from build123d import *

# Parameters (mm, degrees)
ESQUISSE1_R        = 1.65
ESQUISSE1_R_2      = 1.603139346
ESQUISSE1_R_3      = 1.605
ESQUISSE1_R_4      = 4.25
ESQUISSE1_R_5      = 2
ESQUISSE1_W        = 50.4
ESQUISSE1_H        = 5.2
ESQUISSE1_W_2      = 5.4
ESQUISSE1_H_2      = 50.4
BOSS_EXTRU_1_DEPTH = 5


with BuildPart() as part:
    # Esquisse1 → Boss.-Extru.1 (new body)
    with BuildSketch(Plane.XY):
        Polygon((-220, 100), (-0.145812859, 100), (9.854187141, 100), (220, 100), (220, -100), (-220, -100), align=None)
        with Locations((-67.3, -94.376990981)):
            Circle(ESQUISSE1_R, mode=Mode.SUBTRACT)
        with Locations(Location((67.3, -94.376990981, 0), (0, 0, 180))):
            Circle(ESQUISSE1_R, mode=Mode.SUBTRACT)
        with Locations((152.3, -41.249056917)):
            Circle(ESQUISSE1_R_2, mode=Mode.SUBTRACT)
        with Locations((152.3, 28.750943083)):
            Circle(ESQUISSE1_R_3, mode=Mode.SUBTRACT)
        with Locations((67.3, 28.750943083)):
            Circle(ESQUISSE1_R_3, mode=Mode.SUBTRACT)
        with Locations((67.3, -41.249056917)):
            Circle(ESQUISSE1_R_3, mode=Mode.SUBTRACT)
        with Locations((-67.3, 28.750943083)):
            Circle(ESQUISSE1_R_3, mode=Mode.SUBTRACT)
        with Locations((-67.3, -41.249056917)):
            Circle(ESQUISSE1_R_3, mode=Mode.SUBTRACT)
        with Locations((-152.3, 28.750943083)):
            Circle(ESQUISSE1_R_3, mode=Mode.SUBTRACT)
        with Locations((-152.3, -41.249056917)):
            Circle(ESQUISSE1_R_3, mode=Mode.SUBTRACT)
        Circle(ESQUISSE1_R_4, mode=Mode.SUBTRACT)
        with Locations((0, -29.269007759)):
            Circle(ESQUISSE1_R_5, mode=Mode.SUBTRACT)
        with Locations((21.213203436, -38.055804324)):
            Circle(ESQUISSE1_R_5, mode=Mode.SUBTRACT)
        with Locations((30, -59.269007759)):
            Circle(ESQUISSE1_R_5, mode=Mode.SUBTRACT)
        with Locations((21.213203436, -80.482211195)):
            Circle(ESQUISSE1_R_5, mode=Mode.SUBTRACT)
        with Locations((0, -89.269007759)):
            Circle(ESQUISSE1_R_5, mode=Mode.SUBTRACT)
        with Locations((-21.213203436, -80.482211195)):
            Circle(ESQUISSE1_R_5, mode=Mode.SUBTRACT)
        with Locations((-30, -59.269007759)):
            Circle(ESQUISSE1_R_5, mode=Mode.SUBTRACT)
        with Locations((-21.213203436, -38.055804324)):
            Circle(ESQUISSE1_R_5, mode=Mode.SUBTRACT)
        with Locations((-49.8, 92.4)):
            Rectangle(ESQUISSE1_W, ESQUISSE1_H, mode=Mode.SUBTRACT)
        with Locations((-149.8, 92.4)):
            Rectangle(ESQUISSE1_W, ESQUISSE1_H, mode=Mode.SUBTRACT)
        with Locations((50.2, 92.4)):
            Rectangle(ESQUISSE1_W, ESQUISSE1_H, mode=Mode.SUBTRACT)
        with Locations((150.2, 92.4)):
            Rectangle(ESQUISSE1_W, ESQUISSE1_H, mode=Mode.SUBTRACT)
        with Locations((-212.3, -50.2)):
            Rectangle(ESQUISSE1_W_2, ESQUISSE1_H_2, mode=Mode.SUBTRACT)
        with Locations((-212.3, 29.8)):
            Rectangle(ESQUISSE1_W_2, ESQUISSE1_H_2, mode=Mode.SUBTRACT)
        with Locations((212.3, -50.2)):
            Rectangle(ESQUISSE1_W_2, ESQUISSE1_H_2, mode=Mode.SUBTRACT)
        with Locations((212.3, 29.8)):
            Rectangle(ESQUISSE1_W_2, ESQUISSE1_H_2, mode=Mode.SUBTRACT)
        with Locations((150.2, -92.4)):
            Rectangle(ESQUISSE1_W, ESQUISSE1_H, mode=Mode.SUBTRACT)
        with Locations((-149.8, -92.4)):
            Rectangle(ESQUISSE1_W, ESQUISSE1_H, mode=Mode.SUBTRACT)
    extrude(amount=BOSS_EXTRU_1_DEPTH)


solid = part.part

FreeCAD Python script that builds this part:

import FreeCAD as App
import Part
import Sketcher
Q = App.Units.Quantity

doc = App.newDocument("Part")
body = doc.addObject("PartDesign::Body", "Body")

sketch1 = body.newObject("Sketcher::SketchObject", "Sketch")
sketch1.AttachmentSupport = (doc.getObject("XY_Plane"), [""])
sketch1.MapMode = "FlatFace"
sketch1.addGeometry(Part.LineSegment(App.Vector(220, 100, 0), App.Vector(-220, 100, 0)), False)
sketch1.addGeometry(Part.LineSegment(App.Vector(-220, 100, 0), App.Vector(-220, -100, 0)), False)
sketch1.addGeometry(Part.LineSegment(App.Vector(-220, -100, 0), App.Vector(220, -100, 0)), False)
sketch1.addGeometry(Part.LineSegment(App.Vector(220, -100, 0), App.Vector(220, 100, 0)), False)
sketch1.addGeometry(Part.LineSegment(App.Vector(125, -95, 0), App.Vector(125, -89.8, 0)), False)
sketch1.addGeometry(Part.LineSegment(App.Vector(125, -89.8, 0), App.Vector(175.4, -89.8, 0)), False)
sketch1.addGeometry(Part.LineSegment(App.Vector(175.4, -89.8, 0), App.Vector(175.4, -95, 0)), False)
sketch1.addGeometry(Part.LineSegment(App.Vector(175.4, -95, 0), App.Vector(125, -95, 0)), False)
sketch1.addGeometry(Part.LineSegment(App.Vector(209.6, -75.4, 0), App.Vector(209.6, -25, 0)), False)
sketch1.addGeometry(Part.LineSegment(App.Vector(209.6, -25, 0), App.Vector(215, -25, 0)), False)
sketch1.addGeometry(Part.LineSegment(App.Vector(215, -25, 0), App.Vector(215, -75.4, 0)), False)
sketch1.addGeometry(Part.LineSegment(App.Vector(215, -75.4, 0), App.Vector(209.6, -75.4, 0)), False)
sketch1.addGeometry(Part.Circle(App.Vector(67.3, -94.376991, 0), App.Vector(0, 0, 1), 1.65), False)
sketch1.addGeometry(Part.Circle(App.Vector(21.213203, -80.482211, 0), App.Vector(0, 0, 1), 2), False)
sketch1.addGeometry(Part.Circle(App.Vector(30, -59.269008, 0), App.Vector(0, 0, 1), 2), False)
sketch1.addGeometry(Part.Circle(App.Vector(152.3, -41.249057, 0), App.Vector(0, 0, 1), 1.603139), False)
sketch1.addGeometry(Part.Circle(App.Vector(67.3, -41.249057, 0), App.Vector(0, 0, 1), 1.605), False)
sketch1.addGeometry(Part.Circle(App.Vector(21.213203, -38.055804, 0), App.Vector(0, 0, 1), 2), False)
sketch1.addGeometry(Part.Circle(App.Vector(0, -89.269008, 0), App.Vector(0, 0, 1), 2), False)
sketch1.addGeometry(Part.Circle(App.Vector(-21.213203, -80.482211, 0), App.Vector(0, 0, 1), 2), False)
sketch1.addGeometry(Part.Circle(App.Vector(-67.3, -94.376991, 0), App.Vector(0, 0, 1), 1.65), False)
sketch1.addGeometry(Part.Circle(App.Vector(-30, -59.269008, 0), App.Vector(0, 0, 1), 2), False)
sketch1.addGeometry(Part.LineSegment(App.Vector(-175, -95, 0), App.Vector(-175, -89.8, 0)), False)
sketch1.addGeometry(Part.LineSegment(App.Vector(-175, -89.8, 0), App.Vector(-124.6, -89.8, 0)), False)
sketch1.addGeometry(Part.LineSegment(App.Vector(-124.6, -89.8, 0), App.Vector(-124.6, -95, 0)), False)
sketch1.addGeometry(Part.LineSegment(App.Vector(-124.6, -95, 0), App.Vector(-175, -95, 0)), False)
sketch1.addGeometry(Part.LineSegment(App.Vector(-215, -75.4, 0), App.Vector(-215, -25, 0)), False)
sketch1.addGeometry(Part.LineSegment(App.Vector(-215, -25, 0), App.Vector(-209.6, -25, 0)), False)
sketch1.addGeometry(Part.LineSegment(App.Vector(-209.6, -25, 0), App.Vector(-209.6, -75.4, 0)), False)
sketch1.addGeometry(Part.LineSegment(App.Vector(-209.6, -75.4, 0), App.Vector(-215, -75.4, 0)), False)
sketch1.addGeometry(Part.Circle(App.Vector(-21.213203, -38.055804, 0), App.Vector(0, 0, 1), 2), False)
sketch1.addGeometry(Part.Circle(App.Vector(0, -29.269008, 0), App.Vector(0, 0, 1), 2), False)
sketch1.addGeometry(Part.Circle(App.Vector(-67.3, -41.249057, 0), App.Vector(0, 0, 1), 1.605), False)
sketch1.addGeometry(Part.Circle(App.Vector(-152.3, -41.249057, 0), App.Vector(0, 0, 1), 1.605), False)
sketch1.addGeometry(Part.LineSegment(App.Vector(209.6, 4.6, 0), App.Vector(209.6, 55, 0)), False)
sketch1.addGeometry(Part.LineSegment(App.Vector(209.6, 55, 0), App.Vector(215, 55, 0)), False)
sketch1.addGeometry(Part.LineSegment(App.Vector(215, 55, 0), App.Vector(215, 4.6, 0)), False)
sketch1.addGeometry(Part.LineSegment(App.Vector(215, 4.6, 0), App.Vector(209.6, 4.6, 0)), False)
sketch1.addGeometry(Part.Circle(App.Vector(152.3, 28.750943, 0), App.Vector(0, 0, 1), 1.605), False)
sketch1.addGeometry(Part.Circle(App.Vector(67.3, 28.750943, 0), App.Vector(0, 0, 1), 1.605), False)
sketch1.addGeometry(Part.LineSegment(App.Vector(125, 89.8, 0), App.Vector(125, 95, 0)), False)
sketch1.addGeometry(Part.LineSegment(App.Vector(125, 95, 0), App.Vector(175.4, 95, 0)), False)
sketch1.addGeometry(Part.LineSegment(App.Vector(175.4, 95, 0), App.Vector(175.4, 89.8, 0)), False)
sketch1.addGeometry(Part.LineSegment(App.Vector(175.4, 89.8, 0), App.Vector(125, 89.8, 0)), False)
sketch1.addGeometry(Part.LineSegment(App.Vector(25, 89.8, 0), App.Vector(25, 95, 0)), False)
sketch1.addGeometry(Part.LineSegment(App.Vector(25, 95, 0), App.Vector(75.4, 95, 0)), False)
sketch1.addGeometry(Part.LineSegment(App.Vector(75.4, 95, 0), App.Vector(75.4, 89.8, 0)), False)
sketch1.addGeometry(Part.LineSegment(App.Vector(75.4, 89.8, 0), App.Vector(25, 89.8, 0)), False)
sketch1.addGeometry(Part.Circle(App.Vector(0, 0, 0), App.Vector(0, 0, 1), 4.25), False)
sketch1.addGeometry(Part.Circle(App.Vector(-67.3, 28.750943, 0), App.Vector(0, 0, 1), 1.605), False)
sketch1.addGeometry(Part.Circle(App.Vector(-152.3, 28.750943, 0), App.Vector(0, 0, 1), 1.605), False)
sketch1.addGeometry(Part.LineSegment(App.Vector(-215, 4.6, 0), App.Vector(-215, 55, 0)), False)
sketch1.addGeometry(Part.LineSegment(App.Vector(-215, 55, 0), App.Vector(-209.6, 55, 0)), False)
sketch1.addGeometry(Part.LineSegment(App.Vector(-209.6, 55, 0), App.Vector(-209.6, 4.6, 0)), False)
sketch1.addGeometry(Part.LineSegment(App.Vector(-209.6, 4.6, 0), App.Vector(-215, 4.6, 0)), False)
sketch1.addGeometry(Part.LineSegment(App.Vector(-75, 89.8, 0), App.Vector(-75, 95, 0)), False)
sketch1.addGeometry(Part.LineSegment(App.Vector(-75, 95, 0), App.Vector(-24.6, 95, 0)), False)
sketch1.addGeometry(Part.LineSegment(App.Vector(-24.6, 95, 0), App.Vector(-24.6, 89.8, 0)), False)
sketch1.addGeometry(Part.LineSegment(App.Vector(-24.6, 89.8, 0), App.Vector(-75, 89.8, 0)), False)
sketch1.addGeometry(Part.LineSegment(App.Vector(-175, 89.8, 0), App.Vector(-175, 95, 0)), False)
sketch1.addGeometry(Part.LineSegment(App.Vector(-175, 95, 0), App.Vector(-124.6, 95, 0)), False)
sketch1.addGeometry(Part.LineSegment(App.Vector(-124.6, 95, 0), App.Vector(-124.6, 89.8, 0)), False)
sketch1.addGeometry(Part.LineSegment(App.Vector(-124.6, 89.8, 0), App.Vector(-175, 89.8, 0)), False)
sketch1.addConstraint(Sketcher.Constraint("Coincident", 0, 2, 1, 1))
sketch1.addConstraint(Sketcher.Constraint("Coincident", 1, 2, 2, 1))
sketch1.addConstraint(Sketcher.Constraint("Coincident", 2, 2, 3, 1))
sketch1.addConstraint(Sketcher.Constraint("Coincident", 3, 2, 0, 1))
sketch1.addConstraint(Sketcher.Constraint("Coincident", 4, 2, 5, 1))
sketch1.addConstraint(Sketcher.Constraint("Coincident", 5, 2, 6, 1))
sketch1.addConstraint(Sketcher.Constraint("Coincident", 6, 2, 7, 1))
sketch1.addConstraint(Sketcher.Constraint("Coincident", 7, 2, 4, 1))
sketch1.addConstraint(Sketcher.Constraint("Coincident", 8, 2, 9, 1))
sketch1.addConstraint(Sketcher.Constraint("Coincident", 9, 2, 10, 1))
sketch1.addConstraint(Sketcher.Constraint("Coincident", 10, 2, 11, 1))
sketch1.addConstraint(Sketcher.Constraint("Coincident", 11, 2, 8, 1))
sketch1.addConstraint(Sketcher.Constraint("Coincident", 22, 2, 23, 1))
sketch1.addConstraint(Sketcher.Constraint("Coincident", 23, 2, 24, 1))
sketch1.addConstraint(Sketcher.Constraint("Coincident", 24, 2, 25, 1))
sketch1.addConstraint(Sketcher.Constraint("Coincident", 25, 2, 22, 1))
sketch1.addConstraint(Sketcher.Constraint("Coincident", 26, 2, 27, 1))
sketch1.addConstraint(Sketcher.Constraint("Coincident", 27, 2, 28, 1))
sketch1.addConstraint(Sketcher.Constraint("Coincident", 28, 2, 29, 1))
sketch1.addConstraint(Sketcher.Constraint("Coincident", 29, 2, 26, 1))
sketch1.addConstraint(Sketcher.Constraint("Coincident", 34, 2, 35, 1))
sketch1.addConstraint(Sketcher.Constraint("Coincident", 35, 2, 36, 1))
sketch1.addConstraint(Sketcher.Constraint("Coincident", 36, 2, 37, 1))
sketch1.addConstraint(Sketcher.Constraint("Coincident", 37, 2, 34, 1))
sketch1.addConstraint(Sketcher.Constraint("Coincident", 40, 2, 41, 1))
sketch1.addConstraint(Sketcher.Constraint("Coincident", 41, 2, 42, 1))
sketch1.addConstraint(Sketcher.Constraint("Coincident", 42, 2, 43, 1))
sketch1.addConstraint(Sketcher.Constraint("Coincident", 43, 2, 40, 1))
sketch1.addConstraint(Sketcher.Constraint("Coincident", 44, 2, 45, 1))
sketch1.addConstraint(Sketcher.Constraint("Coincident", 45, 2, 46, 1))
sketch1.addConstraint(Sketcher.Constraint("Coincident", 46, 2, 47, 1))
sketch1.addConstraint(Sketcher.Constraint("Coincident", 47, 2, 44, 1))
sketch1.addConstraint(Sketcher.Constraint("Coincident", 51, 2, 52, 1))
sketch1.addConstraint(Sketcher.Constraint("Coincident", 52, 2, 53, 1))
sketch1.addConstraint(Sketcher.Constraint("Coincident", 53, 2, 54, 1))
sketch1.addConstraint(Sketcher.Constraint("Coincident", 54, 2, 51, 1))
sketch1.addConstraint(Sketcher.Constraint("Coincident", 55, 2, 56, 1))
sketch1.addConstraint(Sketcher.Constraint("Coincident", 56, 2, 57, 1))
sketch1.addConstraint(Sketcher.Constraint("Coincident", 57, 2, 58, 1))
sketch1.addConstraint(Sketcher.Constraint("Coincident", 58, 2, 55, 1))
sketch1.addConstraint(Sketcher.Constraint("Coincident", 59, 2, 60, 1))
sketch1.addConstraint(Sketcher.Constraint("Coincident", 60, 2, 61, 1))
sketch1.addConstraint(Sketcher.Constraint("Coincident", 61, 2, 62, 1))
sketch1.addConstraint(Sketcher.Constraint("Coincident", 62, 2, 59, 1))
sketch1.addConstraint(Sketcher.Constraint("Horizontal", 0))
sketch1.addConstraint(Sketcher.Constraint("Vertical", 1))
sketch1.addConstraint(Sketcher.Constraint("Horizontal", 2))
sketch1.addConstraint(Sketcher.Constraint("Vertical", 3))
sketch1.addConstraint(Sketcher.Constraint("Vertical", 4))
sketch1.addConstraint(Sketcher.Constraint("Horizontal", 5))
sketch1.addConstraint(Sketcher.Constraint("Vertical", 6))
sketch1.addConstraint(Sketcher.Constraint("Horizontal", 7))
sketch1.addConstraint(Sketcher.Constraint("Vertical", 8))
sketch1.addConstraint(Sketcher.Constraint("Horizontal", 9))
sketch1.addConstraint(Sketcher.Constraint("Vertical", 10))
sketch1.addConstraint(Sketcher.Constraint("Horizontal", 11))
sketch1.addConstraint(Sketcher.Constraint("Vertical", 22))
sketch1.addConstraint(Sketcher.Constraint("Horizontal", 23))
sketch1.addConstraint(Sketcher.Constraint("Vertical", 24))
sketch1.addConstraint(Sketcher.Constraint("Horizontal", 25))
sketch1.addConstraint(Sketcher.Constraint("Vertical", 26))
sketch1.addConstraint(Sketcher.Constraint("Horizontal", 27))
sketch1.addConstraint(Sketcher.Constraint("Vertical", 28))
sketch1.addConstraint(Sketcher.Constraint("Horizontal", 29))
sketch1.addConstraint(Sketcher.Constraint("Vertical", 34))
sketch1.addConstraint(Sketcher.Constraint("Horizontal", 35))
sketch1.addConstraint(Sketcher.Constraint("Vertical", 36))
sketch1.addConstraint(Sketcher.Constraint("Horizontal", 37))
sketch1.addConstraint(Sketcher.Constraint("Vertical", 40))
sketch1.addConstraint(Sketcher.Constraint("Horizontal", 41))
sketch1.addConstraint(Sketcher.Constraint("Vertical", 42))
sketch1.addConstraint(Sketcher.Constraint("Horizontal", 43))
sketch1.addConstraint(Sketcher.Constraint("Vertical", 44))
sketch1.addConstraint(Sketcher.Constraint("Horizontal", 45))
sketch1.addConstraint(Sketcher.Constraint("Vertical", 46))
sketch1.addConstraint(Sketcher.Constraint("Horizontal", 47))
sketch1.addConstraint(Sketcher.Constraint("Vertical", 51))
sketch1.addConstraint(Sketcher.Constraint("Horizontal", 52))
sketch1.addConstraint(Sketcher.Constraint("Vertical", 53))
sketch1.addConstraint(Sketcher.Constraint("Horizontal", 54))
sketch1.addConstraint(Sketcher.Constraint("Vertical", 55))
sketch1.addConstraint(Sketcher.Constraint("Horizontal", 56))
sketch1.addConstraint(Sketcher.Constraint("Vertical", 57))
sketch1.addConstraint(Sketcher.Constraint("Horizontal", 58))
sketch1.addConstraint(Sketcher.Constraint("Vertical", 59))
sketch1.addConstraint(Sketcher.Constraint("Horizontal", 60))
sketch1.addConstraint(Sketcher.Constraint("Vertical", 61))
sketch1.addConstraint(Sketcher.Constraint("Horizontal", 62))
sketch1.addConstraint(Sketcher.Constraint("Coincident", 48, 3, -1, 1))
sketch1.addConstraint(Sketcher.Constraint("Equal", 13, 14))
sketch1.addConstraint(Sketcher.Constraint("Equal", 14, 17))
sketch1.addConstraint(Sketcher.Constraint("Equal", 17, 18))
sketch1.addConstraint(Sketcher.Constraint("Equal", 18, 19))
sketch1.addConstraint(Sketcher.Constraint("Equal", 12, 20))
sketch1.addConstraint(Sketcher.Constraint("Equal", 19, 21))
sketch1.addConstraint(Sketcher.Constraint("Equal", 21, 30))
sketch1.addConstraint(Sketcher.Constraint("Equal", 30, 31))
sketch1.addConstraint(Sketcher.Constraint("Equal", 16, 32))
sketch1.addConstraint(Sketcher.Constraint("Equal", 32, 33))
sketch1.addConstraint(Sketcher.Constraint("Equal", 33, 38))
sketch1.addConstraint(Sketcher.Constraint("Equal", 38, 39))
sketch1.addConstraint(Sketcher.Constraint("Equal", 39, 49))
sketch1.addConstraint(Sketcher.Constraint("Equal", 49, 50))
sketch1.addConstraint(Sketcher.Constraint("Symmetric", 0, 2, 2, 2, -1, 1))
sketch1.addConstraint(Sketcher.Constraint("Symmetric", 13, 3, 19, 3, -2))
sketch1.addConstraint(Sketcher.Constraint("Symmetric", 12, 3, 20, 3, -2))
sketch1.addConstraint(Sketcher.Constraint("Symmetric", 14, 3, 21, 3, -2))
sketch1.addConstraint(Sketcher.Constraint("Symmetric", 17, 3, 30, 3, -2))
sketch1.addConstraint(Sketcher.Constraint("Symmetric", 16, 3, 32, 3, -2))
sketch1.addConstraint(Sketcher.Constraint("Symmetric", 15, 3, 33, 3, -2))
sketch1.addConstraint(Sketcher.Constraint("Symmetric", 39, 3, 49, 3, -2))
sketch1.addConstraint(Sketcher.Constraint("Symmetric", 38, 3, 50, 3, -2))
sketch1.addConstraint(Sketcher.Constraint("Symmetric", 9, 2, 26, 2, -2))
sketch1.addConstraint(Sketcher.Constraint("Symmetric", 11, 2, 28, 2, -2))
sketch1.addConstraint(Sketcher.Constraint("Symmetric", 35, 2, 51, 2, -2))
sketch1.addConstraint(Sketcher.Constraint("Symmetric", 37, 2, 53, 2, -2))
sketch1.addConstraint(Sketcher.Constraint("Symmetric", 7, 2, 40, 2, -1))
sketch1.addConstraint(Sketcher.Constraint("Symmetric", 5, 2, 42, 2, -1))
sketch1.addConstraint(Sketcher.Constraint("Symmetric", 25, 2, 59, 2, -1))
sketch1.addConstraint(Sketcher.Constraint("Symmetric", 23, 2, 61, 2, -1))
sketch1.addConstraint(Sketcher.Constraint("PointOnObject", 18, 3, -2))
sketch1.addConstraint(Sketcher.Constraint("PointOnObject", 31, 3, -2))
sketch1.addConstraint(Sketcher.Constraint("Horizontal", 15, 3, 16, 3))
sketch1.addConstraint(Sketcher.Constraint("Horizontal", 38, 3, 39, 3))
sketch1.addConstraint(Sketcher.Constraint("Horizontal", 5, 2, 22, 2))
sketch1.addConstraint(Sketcher.Constraint("Horizontal", 7, 2, 24, 2))
sketch1.addConstraint(Sketcher.Constraint("Horizontal", 41, 2, 44, 2))
sketch1.addConstraint(Sketcher.Constraint("Horizontal", 43, 2, 46, 2))
sketch1.addConstraint(Sketcher.Constraint("Horizontal", 45, 2, 55, 2))
sketch1.addConstraint(Sketcher.Constraint("Horizontal", 47, 2, 57, 2))
sketch1.addConstraint(Sketcher.Constraint("Vertical", 12, 3, 16, 3))
sketch1.addConstraint(Sketcher.Constraint("Vertical", 13, 3, 17, 3))
sketch1.addConstraint(Sketcher.Constraint("Vertical", 15, 3, 38, 3))
sketch1.addConstraint(Sketcher.Constraint("Vertical", 16, 3, 39, 3))
sketch1.addConstraint(Sketcher.Constraint("Vertical", 11, 2, 34, 2))
sketch1.addConstraint(Sketcher.Constraint("Vertical", 10, 2, 35, 2))
sketch1.addConstraint(Sketcher.Constraint("Equal", 7, 23))
sketch1.addConstraint(Sketcher.Constraint("Equal", 43, 45))
sketch1.addConstraint(Sketcher.Constraint("Equal", 47, 56))
sketch1.addConstraint(Sketcher.Constraint("Equal", 62, 8))
sketch1.addConstraint(Sketcher.Constraint("Equal", 28, 34))
sketch1.addConstraint(Sketcher.Constraint("Diameter", 13, Q("4 mm")))
sketch1.addConstraint(Sketcher.Constraint("Diameter", 12, Q("3.3 mm")))
sketch1.addConstraint(Sketcher.Constraint("Diameter", 48, Q("8.5 mm")))
sketch1.addConstraint(Sketcher.Constraint("Diameter", 16, Q("3.21 mm")))
sketch1.addConstraint(Sketcher.Constraint("DistanceX", 0, 2, 0, 1, Q("440 mm")))
sketch1.addConstraint(Sketcher.Constraint("DistanceY", 1, 2, 1, 1, Q("200 mm")))
sketch1.addConstraint(Sketcher.Constraint("DistanceX", 5, 1, 5, 2, Q("50.4 mm")))
sketch1.addConstraint(Sketcher.Constraint("DistanceX", 9, 1, 9, 2, Q("5.4 mm")))
sketch1.addConstraint(Sketcher.Constraint("DistanceY", 4, 1, 4, 2, Q("5.2 mm")))
sketch1.addConstraint(Sketcher.Constraint("DistanceX", -1, 1, 14, 3, Q("30 mm")))
sketch1.addConstraint(Sketcher.Constraint("DistanceX", -1, 1, 4, 2, Q("125 mm")))
sketch1.addConstraint(Sketcher.Constraint("DistanceY", 6, 2, -1, 1, Q("95 mm")))
sketch1.addConstraint(Sketcher.Constraint("DistanceY", 8, 2, -1, 1, Q("25 mm")))
sketch1.addConstraint(Sketcher.Constraint("DistanceX", -1, 1, 9, 2, Q("215 mm")))
sketch1.addConstraint(Sketcher.Constraint("DistanceX", 22, 2, -1, 1, Q("175 mm")))
sketch1.addConstraint(Sketcher.Constraint("DistanceY", -1, 1, 34, 2, Q("55 mm")))
sketch1.addConstraint(Sketcher.Constraint("DistanceX", -1, 1, 44, 2, Q("25 mm")))
sketch1.addConstraint(Sketcher.Constraint("DistanceX", 55, 2, -1, 1, Q("75 mm")))
sketch1.addConstraint(Sketcher.Constraint("DistanceX", -1, 1, 12, 3, Q("67.3 mm")))
sketch1.addConstraint(Sketcher.Constraint("DistanceX", -1, 1, 15, 3, Q("152.3 mm")))
sketch1.addConstraint(Sketcher.Constraint("Diameter", 15, Q("3.206279 mm")))
sketch1.addConstraint(Sketcher.Constraint("DistanceY", 12, 3, -1, 1, Q("94.376991 mm")))
sketch1.addConstraint(Sketcher.Constraint("DistanceY", 13, 3, -1, 1, Q("80.482211 mm")))
sketch1.addConstraint(Sketcher.Constraint("DistanceX", -1, 1, 13, 3, Q("21.213203 mm")))
sketch1.addConstraint(Sketcher.Constraint("DistanceY", 14, 3, -1, 1, Q("59.269008 mm")))
sketch1.addConstraint(Sketcher.Constraint("DistanceY", 15, 3, -1, 1, Q("41.249057 mm")))
sketch1.addConstraint(Sketcher.Constraint("DistanceY", 17, 3, -1, 1, Q("38.055804 mm")))
sketch1.addConstraint(Sketcher.Constraint("DistanceY", 18, 3, -1, 1, Q("89.269008 mm")))
sketch1.addConstraint(Sketcher.Constraint("DistanceY", 31, 3, -1, 1, Q("29.269008 mm")))
sketch1.addConstraint(Sketcher.Constraint("DistanceY", -1, 1, 38, 3, Q("28.750943 mm")))
pad1 = body.newObject("PartDesign::Pad", "Pad")
pad1.Profile = sketch1
pad1.Length = 5

doc.recompute()
